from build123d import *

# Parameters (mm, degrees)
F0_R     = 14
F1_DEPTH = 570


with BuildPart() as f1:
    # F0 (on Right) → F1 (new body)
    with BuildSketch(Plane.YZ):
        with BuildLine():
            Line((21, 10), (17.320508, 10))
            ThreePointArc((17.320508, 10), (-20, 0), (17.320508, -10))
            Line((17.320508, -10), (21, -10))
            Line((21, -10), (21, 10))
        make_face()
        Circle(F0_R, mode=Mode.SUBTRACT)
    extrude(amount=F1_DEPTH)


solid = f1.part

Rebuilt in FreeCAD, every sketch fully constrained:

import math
import FreeCAD as App
import Part
import Sketcher

V = App.Vector
Q = App.Units.Quantity

doc = App.newDocument("Part")
body = doc.addObject("PartDesign::Body", "Body")

# Sketch on YZ plane
sketch1 = body.newObject("Sketcher::SketchObject", "Sketch")
sketch1.AttachmentSupport = (doc.getObject("YZ_Plane"), [""])
sketch1.MapMode = "FlatFace"
sketch1.addGeometry(Part.LineSegment(V(21, 10, 0), V(17.3, 10, 0)), False)
sketch1.addGeometry(Part.ArcOfCircle(Part.Circle(V(0, 0, 0), V(0, 0, 1), 20), math.radians(30), math.radians(330)), False)
sketch1.addGeometry(Part.LineSegment(V(17.3, -10, 0), V(21, -10, 0)), False)
sketch1.addGeometry(Part.LineSegment(V(21, -10, 0), V(21, 10, 0)), False)
sketch1.addGeometry(Part.Circle(V(0, 0, 0), V(0, 0, 1), 14), False)
sketch1.addConstraint(Sketcher.Constraint("Coincident", 0, 2, 1, 1))
sketch1.addConstraint(Sketcher.Constraint("Coincident", 1, 2, 2, 1))
sketch1.addConstraint(Sketcher.Constraint("Coincident", 2, 2, 3, 1))
sketch1.addConstraint(Sketcher.Constraint("Coincident", 3, 2, 0, 1))
sketch1.addConstraint(Sketcher.Constraint("Horizontal", 0))
sketch1.addConstraint(Sketcher.Constraint("Horizontal", 2))
sketch1.addConstraint(Sketcher.Constraint("Vertical", 3))
sketch1.addConstraint(Sketcher.Constraint("Coincident", 1, 3, -1, 1))
sketch1.addConstraint(Sketcher.Constraint("Coincident", 4, 3, -1, 1))
sketch1.addConstraint(Sketcher.Constraint("Vertical", 0, 2, 1, 2))
sketch1.addConstraint(Sketcher.Constraint("Diameter", 4, Q("28 mm")))
sketch1.addConstraint(Sketcher.Constraint("Radius", 1, Q("20 mm")))
sketch1.addConstraint(Sketcher.Constraint("DistanceY", 3, 1, 3, 2, Q("20 mm")))
sketch1.addConstraint(Sketcher.Constraint("DistanceX", -1, 1, 2, 2, Q("21 mm")))
pad1 = body.newObject("PartDesign::Pad", "Pad")
pad1.Profile = sketch1
pad1.Length = 570

doc.recompute()
